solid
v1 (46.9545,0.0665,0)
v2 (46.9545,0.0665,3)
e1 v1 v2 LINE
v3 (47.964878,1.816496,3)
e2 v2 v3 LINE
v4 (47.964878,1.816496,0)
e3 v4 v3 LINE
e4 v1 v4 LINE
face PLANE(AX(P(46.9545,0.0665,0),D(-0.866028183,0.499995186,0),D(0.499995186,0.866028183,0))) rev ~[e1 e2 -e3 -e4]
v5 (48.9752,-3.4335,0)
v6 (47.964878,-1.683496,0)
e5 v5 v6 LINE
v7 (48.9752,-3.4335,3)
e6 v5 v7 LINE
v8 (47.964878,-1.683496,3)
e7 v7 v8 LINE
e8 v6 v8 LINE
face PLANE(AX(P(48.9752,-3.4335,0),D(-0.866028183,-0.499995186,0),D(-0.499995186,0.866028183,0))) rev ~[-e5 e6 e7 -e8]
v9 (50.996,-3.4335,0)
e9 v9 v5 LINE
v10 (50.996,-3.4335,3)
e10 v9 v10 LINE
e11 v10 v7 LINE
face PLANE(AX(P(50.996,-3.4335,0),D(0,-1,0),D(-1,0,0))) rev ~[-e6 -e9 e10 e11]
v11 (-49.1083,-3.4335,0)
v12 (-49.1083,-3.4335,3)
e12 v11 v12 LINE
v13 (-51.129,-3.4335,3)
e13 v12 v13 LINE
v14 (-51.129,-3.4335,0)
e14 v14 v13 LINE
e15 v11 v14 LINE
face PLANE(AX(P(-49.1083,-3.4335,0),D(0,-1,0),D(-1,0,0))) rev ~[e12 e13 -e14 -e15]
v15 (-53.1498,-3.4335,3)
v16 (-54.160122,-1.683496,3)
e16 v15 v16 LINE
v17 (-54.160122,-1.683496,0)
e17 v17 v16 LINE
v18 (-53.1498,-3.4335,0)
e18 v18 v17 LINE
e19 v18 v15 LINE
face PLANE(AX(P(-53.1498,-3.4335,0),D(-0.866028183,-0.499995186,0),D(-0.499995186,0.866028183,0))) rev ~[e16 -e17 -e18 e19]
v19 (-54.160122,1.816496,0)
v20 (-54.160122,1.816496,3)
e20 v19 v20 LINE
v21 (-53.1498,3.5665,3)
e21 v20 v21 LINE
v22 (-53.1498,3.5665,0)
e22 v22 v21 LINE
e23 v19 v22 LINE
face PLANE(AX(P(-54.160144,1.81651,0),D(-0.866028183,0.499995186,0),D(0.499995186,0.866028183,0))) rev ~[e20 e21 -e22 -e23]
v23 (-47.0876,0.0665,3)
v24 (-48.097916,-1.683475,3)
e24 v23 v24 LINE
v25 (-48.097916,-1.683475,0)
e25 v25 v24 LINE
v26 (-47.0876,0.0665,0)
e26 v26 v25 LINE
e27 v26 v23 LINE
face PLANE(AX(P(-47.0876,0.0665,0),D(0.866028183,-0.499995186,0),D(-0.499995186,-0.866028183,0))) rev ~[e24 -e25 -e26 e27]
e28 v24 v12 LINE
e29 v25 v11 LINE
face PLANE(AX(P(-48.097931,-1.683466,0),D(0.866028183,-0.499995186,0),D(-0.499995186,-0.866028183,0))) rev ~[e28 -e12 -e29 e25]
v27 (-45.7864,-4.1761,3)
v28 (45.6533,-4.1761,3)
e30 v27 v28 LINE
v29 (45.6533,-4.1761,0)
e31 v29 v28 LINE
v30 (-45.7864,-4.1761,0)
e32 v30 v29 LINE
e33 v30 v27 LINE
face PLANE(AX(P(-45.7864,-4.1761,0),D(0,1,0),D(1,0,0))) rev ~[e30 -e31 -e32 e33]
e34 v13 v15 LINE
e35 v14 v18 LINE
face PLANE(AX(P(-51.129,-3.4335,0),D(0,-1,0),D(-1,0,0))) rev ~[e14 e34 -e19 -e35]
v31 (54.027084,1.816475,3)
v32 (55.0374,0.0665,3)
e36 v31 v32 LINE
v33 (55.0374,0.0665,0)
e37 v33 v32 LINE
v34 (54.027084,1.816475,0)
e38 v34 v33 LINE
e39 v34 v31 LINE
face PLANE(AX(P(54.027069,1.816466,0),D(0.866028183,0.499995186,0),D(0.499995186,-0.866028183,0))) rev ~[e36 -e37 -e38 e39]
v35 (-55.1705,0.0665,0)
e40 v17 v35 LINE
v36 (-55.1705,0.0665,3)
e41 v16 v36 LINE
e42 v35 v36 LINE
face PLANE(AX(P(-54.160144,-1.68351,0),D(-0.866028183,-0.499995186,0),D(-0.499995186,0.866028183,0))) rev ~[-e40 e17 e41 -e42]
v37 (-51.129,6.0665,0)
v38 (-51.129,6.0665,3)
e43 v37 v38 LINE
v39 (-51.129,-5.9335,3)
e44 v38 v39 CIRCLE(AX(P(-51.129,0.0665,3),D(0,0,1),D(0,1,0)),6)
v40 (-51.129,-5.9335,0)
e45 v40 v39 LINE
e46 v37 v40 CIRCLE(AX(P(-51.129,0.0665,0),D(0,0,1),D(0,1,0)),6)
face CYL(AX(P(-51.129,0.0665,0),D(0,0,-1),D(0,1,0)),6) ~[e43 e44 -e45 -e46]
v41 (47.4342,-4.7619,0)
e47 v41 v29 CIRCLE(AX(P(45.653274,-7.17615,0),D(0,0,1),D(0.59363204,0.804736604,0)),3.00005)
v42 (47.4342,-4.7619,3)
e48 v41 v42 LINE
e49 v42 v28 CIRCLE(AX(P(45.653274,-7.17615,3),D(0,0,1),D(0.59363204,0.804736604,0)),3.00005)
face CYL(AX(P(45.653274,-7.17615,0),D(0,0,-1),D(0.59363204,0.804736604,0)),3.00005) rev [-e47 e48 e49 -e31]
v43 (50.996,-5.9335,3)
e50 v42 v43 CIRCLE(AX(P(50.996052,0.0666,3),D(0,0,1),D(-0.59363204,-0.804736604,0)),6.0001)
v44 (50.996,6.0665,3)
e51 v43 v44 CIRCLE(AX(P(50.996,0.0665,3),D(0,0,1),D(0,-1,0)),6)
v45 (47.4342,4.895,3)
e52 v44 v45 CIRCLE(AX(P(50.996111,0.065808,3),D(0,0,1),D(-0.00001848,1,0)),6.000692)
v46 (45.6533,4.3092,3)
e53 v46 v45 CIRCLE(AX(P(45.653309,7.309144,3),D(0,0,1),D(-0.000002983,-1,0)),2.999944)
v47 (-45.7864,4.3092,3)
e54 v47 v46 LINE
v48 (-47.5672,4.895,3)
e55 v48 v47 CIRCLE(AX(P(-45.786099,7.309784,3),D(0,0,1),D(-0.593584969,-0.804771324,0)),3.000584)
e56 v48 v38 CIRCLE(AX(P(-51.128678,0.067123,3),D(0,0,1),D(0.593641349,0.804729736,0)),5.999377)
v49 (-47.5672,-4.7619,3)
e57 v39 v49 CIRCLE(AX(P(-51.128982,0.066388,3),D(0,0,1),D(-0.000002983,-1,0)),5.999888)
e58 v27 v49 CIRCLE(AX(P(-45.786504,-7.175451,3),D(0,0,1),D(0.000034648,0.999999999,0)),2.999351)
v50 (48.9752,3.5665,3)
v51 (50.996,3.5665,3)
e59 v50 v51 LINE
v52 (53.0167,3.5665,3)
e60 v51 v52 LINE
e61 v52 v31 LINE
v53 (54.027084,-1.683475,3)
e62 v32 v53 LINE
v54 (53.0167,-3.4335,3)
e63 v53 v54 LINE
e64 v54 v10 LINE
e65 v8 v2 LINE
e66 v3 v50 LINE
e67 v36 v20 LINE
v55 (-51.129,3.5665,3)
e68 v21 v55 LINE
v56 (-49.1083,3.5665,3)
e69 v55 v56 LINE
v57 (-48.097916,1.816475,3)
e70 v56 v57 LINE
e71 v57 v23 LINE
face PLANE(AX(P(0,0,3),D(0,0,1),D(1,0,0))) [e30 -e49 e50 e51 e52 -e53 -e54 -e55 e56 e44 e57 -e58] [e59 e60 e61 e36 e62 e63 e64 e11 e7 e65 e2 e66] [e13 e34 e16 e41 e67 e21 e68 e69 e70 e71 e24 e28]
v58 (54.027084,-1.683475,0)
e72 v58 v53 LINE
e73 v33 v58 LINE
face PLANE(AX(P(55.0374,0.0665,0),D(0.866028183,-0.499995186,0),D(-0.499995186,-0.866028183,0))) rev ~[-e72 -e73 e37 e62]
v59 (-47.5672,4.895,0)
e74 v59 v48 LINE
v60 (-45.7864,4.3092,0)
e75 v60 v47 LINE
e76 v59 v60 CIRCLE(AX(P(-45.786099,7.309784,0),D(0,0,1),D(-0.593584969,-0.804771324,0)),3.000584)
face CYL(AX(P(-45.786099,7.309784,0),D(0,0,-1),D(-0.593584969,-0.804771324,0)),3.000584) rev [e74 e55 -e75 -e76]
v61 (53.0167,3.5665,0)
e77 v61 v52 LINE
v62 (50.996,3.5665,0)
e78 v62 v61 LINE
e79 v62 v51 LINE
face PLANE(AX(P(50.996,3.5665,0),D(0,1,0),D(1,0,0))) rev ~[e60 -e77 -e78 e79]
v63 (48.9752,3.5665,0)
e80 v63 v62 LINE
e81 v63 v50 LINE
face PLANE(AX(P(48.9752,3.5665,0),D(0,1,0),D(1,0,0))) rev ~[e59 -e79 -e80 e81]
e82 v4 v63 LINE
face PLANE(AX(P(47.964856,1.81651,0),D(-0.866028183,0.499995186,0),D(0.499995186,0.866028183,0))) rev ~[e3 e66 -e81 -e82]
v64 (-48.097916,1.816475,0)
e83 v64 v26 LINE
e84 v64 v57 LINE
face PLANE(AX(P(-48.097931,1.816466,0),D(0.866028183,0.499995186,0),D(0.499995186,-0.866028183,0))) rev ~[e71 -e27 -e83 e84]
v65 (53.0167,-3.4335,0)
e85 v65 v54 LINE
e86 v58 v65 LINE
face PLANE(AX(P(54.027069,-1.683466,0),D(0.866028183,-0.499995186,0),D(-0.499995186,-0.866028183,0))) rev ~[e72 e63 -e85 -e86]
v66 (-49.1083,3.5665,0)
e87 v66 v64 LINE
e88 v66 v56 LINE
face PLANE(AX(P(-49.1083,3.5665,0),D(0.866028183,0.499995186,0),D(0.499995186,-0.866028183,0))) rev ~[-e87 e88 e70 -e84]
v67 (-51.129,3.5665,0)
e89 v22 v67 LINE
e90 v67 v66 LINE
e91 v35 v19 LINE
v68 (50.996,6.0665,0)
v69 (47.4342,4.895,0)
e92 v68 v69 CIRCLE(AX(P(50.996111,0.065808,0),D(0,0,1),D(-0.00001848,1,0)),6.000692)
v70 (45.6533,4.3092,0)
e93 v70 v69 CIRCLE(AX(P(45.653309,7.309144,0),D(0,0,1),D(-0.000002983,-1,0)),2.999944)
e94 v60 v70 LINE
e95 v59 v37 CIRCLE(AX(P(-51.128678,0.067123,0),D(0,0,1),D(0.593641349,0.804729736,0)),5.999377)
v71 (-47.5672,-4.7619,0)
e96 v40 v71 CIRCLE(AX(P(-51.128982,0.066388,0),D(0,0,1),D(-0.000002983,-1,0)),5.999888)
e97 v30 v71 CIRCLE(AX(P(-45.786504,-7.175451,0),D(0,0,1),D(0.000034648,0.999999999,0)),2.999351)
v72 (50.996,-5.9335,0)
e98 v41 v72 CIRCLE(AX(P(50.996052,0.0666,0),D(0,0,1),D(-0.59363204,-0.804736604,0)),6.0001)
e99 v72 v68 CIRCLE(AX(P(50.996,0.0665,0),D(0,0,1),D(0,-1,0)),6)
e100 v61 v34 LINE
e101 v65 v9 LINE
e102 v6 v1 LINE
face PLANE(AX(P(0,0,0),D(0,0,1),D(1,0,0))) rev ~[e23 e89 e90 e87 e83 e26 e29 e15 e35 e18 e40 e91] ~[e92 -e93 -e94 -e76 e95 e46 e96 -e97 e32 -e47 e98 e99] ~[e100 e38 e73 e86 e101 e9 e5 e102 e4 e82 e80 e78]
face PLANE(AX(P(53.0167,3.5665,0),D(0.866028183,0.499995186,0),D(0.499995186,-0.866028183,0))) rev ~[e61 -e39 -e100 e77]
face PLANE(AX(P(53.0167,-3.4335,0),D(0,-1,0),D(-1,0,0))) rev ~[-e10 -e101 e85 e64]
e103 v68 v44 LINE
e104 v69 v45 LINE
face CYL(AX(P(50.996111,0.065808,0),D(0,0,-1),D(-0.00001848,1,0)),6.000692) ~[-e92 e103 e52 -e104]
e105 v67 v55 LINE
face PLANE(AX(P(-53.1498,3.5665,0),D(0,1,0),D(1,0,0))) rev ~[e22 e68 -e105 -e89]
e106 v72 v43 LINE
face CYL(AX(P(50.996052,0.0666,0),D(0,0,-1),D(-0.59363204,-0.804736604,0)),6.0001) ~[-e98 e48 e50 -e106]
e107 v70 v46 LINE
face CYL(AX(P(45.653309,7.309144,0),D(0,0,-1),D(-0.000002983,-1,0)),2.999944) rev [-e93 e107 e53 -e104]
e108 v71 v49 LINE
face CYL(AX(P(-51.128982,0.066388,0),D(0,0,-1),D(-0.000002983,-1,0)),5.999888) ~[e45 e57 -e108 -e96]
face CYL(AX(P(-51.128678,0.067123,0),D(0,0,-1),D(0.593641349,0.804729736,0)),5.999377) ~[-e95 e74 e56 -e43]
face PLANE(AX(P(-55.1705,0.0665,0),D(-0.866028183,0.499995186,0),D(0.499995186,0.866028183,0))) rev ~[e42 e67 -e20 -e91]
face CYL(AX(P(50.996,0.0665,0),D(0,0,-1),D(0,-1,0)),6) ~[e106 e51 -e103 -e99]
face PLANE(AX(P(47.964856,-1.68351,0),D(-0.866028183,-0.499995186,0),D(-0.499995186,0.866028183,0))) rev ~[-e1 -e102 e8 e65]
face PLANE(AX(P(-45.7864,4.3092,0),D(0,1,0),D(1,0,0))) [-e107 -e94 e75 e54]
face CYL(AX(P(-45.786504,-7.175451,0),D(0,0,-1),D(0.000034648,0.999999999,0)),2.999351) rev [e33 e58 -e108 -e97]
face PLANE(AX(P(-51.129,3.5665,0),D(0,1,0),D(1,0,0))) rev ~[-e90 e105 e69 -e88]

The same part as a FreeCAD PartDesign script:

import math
import FreeCAD as App
import Part
import Sketcher
Q = App.Units.Quantity

doc = App.newDocument("Part")
params = doc.addObject("Spreadsheet::Sheet", "Params")
for row, (alias, value) in enumerate([
    ("sketch1_radius", "6 mm"),
    ("sketch1_radius2", "3 mm"),
    ("pad1_length", "3 mm"),
], start=1):
    params.set(f"A{row}", alias)
    params.set(f"B{row}", "=" + value)
    params.setAlias(f"B{row}", alias)

body = doc.addObject("PartDesign::Body", "Body")

# Sketch on XY plane
sketch1 = doc.addObject("Sketcher::SketchObject", "Sketch")
body.addObject(sketch1)
sketch1.AttachmentSupport = (doc.XY_Plane, [""])
sketch1.MapMode = "FlatFace"
sketch1.addGeometry(Part.ArcOfCircle(Part.Circle(App.Vector(-51.1, 0.1, 0), App.Vector(0, 0, 1), 6), math.radians(54), math.radians(90)), False)
sketch1.addGeometry(Part.ArcOfCircle(Part.Circle(App.Vector(-51.1, 0.1, 0), App.Vector(0, 0, 1), 6), math.radians(90), math.radians(270)), False)
sketch1.addGeometry(Part.ArcOfCircle(Part.Circle(App.Vector(-51.1, 0.1, 0), App.Vector(0, 0, 1), 6), math.radians(-90), math.radians(-54)), False)
sketch1.addGeometry(Part.ArcOfCircle(Part.Circle(App.Vector(-45.8, -7.2, 0), App.Vector(0, 0, 1), 3), math.radians(90), math.radians(126)), False)
sketch1.addGeometry(Part.LineSegment(App.Vector(-45.8, -4.2, 0), App.Vector(45.7, -4.2, 0)), False)
sketch1.addGeometry(Part.ArcOfCircle(Part.Circle(App.Vector(45.7, -7.2, 0), App.Vector(0, 0, 1), 3), math.radians(54), math.radians(90)), False)
sketch1.addGeometry(Part.ArcOfCircle(Part.Circle(App.Vector(51, 0.1, 0), App.Vector(0, 0, 1), 6), math.radians(-126), math.radians(-90)), False)
sketch1.addGeometry(Part.ArcOfCircle(Part.Circle(App.Vector(51, 0.1, 0), App.Vector(0, 0, 1), 6), math.radians(-90), math.radians(90)), False)
sketch1.addGeometry(Part.ArcOfCircle(Part.Circle(App.Vector(51, 0.1, 0), App.Vector(0, 0, 1), 6), math.radians(90), math.radians(126)), False)
sketch1.addGeometry(Part.ArcOfCircle(Part.Circle(App.Vector(45.7, 7.3, 0), App.Vector(0, 0, 1), 3), math.radians(-90), math.radians(-54)), False)
sketch1.addGeometry(Part.LineSegment(App.Vector(45.7, 4.3, 0), App.Vector(-45.8, 4.3, 0)), False)
sketch1.addGeometry(Part.ArcOfCircle(Part.Circle(App.Vector(-45.8, 7.3, 0), App.Vector(0, 0, 1), 3), math.radians(-126), math.radians(-90)), False)
sketch1.addGeometry(Part.LineSegment(App.Vector(-49.1, 3.6, 0), App.Vector(-47.1, 0.1, 0)), False)
sketch1.addGeometry(Part.LineSegment(App.Vector(-47.1, 0.1, 0), App.Vector(-49.1, -3.4, 0)), False)
sketch1.addGeometry(Part.LineSegment(App.Vector(-49.1, -3.4, 0), App.Vector(-53.1, -3.4, 0)), False)
sketch1.addGeometry(Part.LineSegment(App.Vector(-53.1, -3.4, 0), App.Vector(-55.2, 0.1, 0)), False)
sketch1.addGeometry(Part.LineSegment(App.Vector(-55.2, 0.1, 0), App.Vector(-53.1, 3.6, 0)), False)
sketch1.addGeometry(Part.LineSegment(App.Vector(-53.1, 3.6, 0), App.Vector(-49.1, 3.6, 0)), False)
sketch1.addGeometry(Part.LineSegment(App.Vector(53, 3.6, 0), App.Vector(55, 0.1, 0)), False)
sketch1.addGeometry(Part.LineSegment(App.Vector(55, 0.1, 0), App.Vector(53, -3.4, 0)), False)
sketch1.addGeometry(Part.LineSegment(App.Vector(53, -3.4, 0), App.Vector(49, -3.4, 0)), False)
sketch1.addGeometry(Part.LineSegment(App.Vector(49, -3.4, 0), App.Vector(47, 0.1, 0)), False)
sketch1.addGeometry(Part.LineSegment(App.Vector(47, 0.1, 0), App.Vector(49, 3.6, 0)), False)
sketch1.addGeometry(Part.LineSegment(App.Vector(49, 3.6, 0), App.Vector(53, 3.6, 0)), False)
sketch1.addConstraint(Sketcher.Constraint("Tangent", 0, 2, 1, 1))
sketch1.addConstraint(Sketcher.Constraint("Tangent", 1, 2, 2, 1))
sketch1.addConstraint(Sketcher.Constraint("Tangent", 2, 2, 3, 2))
sketch1.addConstraint(Sketcher.Constraint("Tangent", 3, 1, 4, 1))
sketch1.addConstraint(Sketcher.Constraint("Tangent", 4, 2, 5, 2))
sketch1.addConstraint(Sketcher.Constraint("Tangent", 5, 1, 6, 1))
sketch1.addConstraint(Sketcher.Constraint("Tangent", 6, 2, 7, 1))
sketch1.addConstraint(Sketcher.Constraint("Tangent", 7, 2, 8, 1))
sketch1.addConstraint(Sketcher.Constraint("Tangent", 8, 2, 9, 2))
sketch1.addConstraint(Sketcher.Constraint("Tangent", 9, 1, 10, 1))
sketch1.addConstraint(Sketcher.Constraint("Tangent", 10, 2, 11, 2))
sketch1.addConstraint(Sketcher.Constraint("Tangent", 11, 1, 0, 1))
sketch1.addConstraint(Sketcher.Constraint("Coincident", 12, 2, 13, 1))
sketch1.addConstraint(Sketcher.Constraint("Coincident", 13, 2, 14, 1))
sketch1.addConstraint(Sketcher.Constraint("Coincident", 14, 2, 15, 1))
sketch1.addConstraint(Sketcher.Constraint("Coincident", 15, 2, 16, 1))
sketch1.addConstraint(Sketcher.Constraint("Coincident", 16, 2, 17, 1))
sketch1.addConstraint(Sketcher.Constraint("Coincident", 17, 2, 12, 1))
sketch1.addConstraint(Sketcher.Constraint("Coincident", 18, 2, 19, 1))
sketch1.addConstraint(Sketcher.Constraint("Coincident", 19, 2, 20, 1))
sketch1.addConstraint(Sketcher.Constraint("Coincident", 20, 2, 21, 1))
sketch1.addConstraint(Sketcher.Constraint("Coincident", 21, 2, 22, 1))
sketch1.addConstraint(Sketcher.Constraint("Coincident", 22, 2, 23, 1))
sketch1.addConstraint(Sketcher.Constraint("Coincident", 23, 2, 18, 1))
sketch1.addConstraint(Sketcher.Constraint("Horizontal", 4))
sketch1.addConstraint(Sketcher.Constraint("Horizontal", 10))
sketch1.addConstraint(Sketcher.Constraint("Horizontal", 14))
sketch1.addConstraint(Sketcher.Constraint("Horizontal", 17))
sketch1.addConstraint(Sketcher.Constraint("Horizontal", 20))
sketch1.addConstraint(Sketcher.Constraint("Horizontal", 23))
sketch1.addConstraint(Sketcher.Constraint("Equal", 0, 1))
sketch1.addConstraint(Sketcher.Constraint("Equal", 1, 2))
sketch1.addConstraint(Sketcher.Constraint("Equal", 3, 5))
sketch1.addConstraint(Sketcher.Constraint("Equal", 2, 6))
sketch1.addConstraint(Sketcher.Constraint("Equal", 6, 7))
sketch1.addConstraint(Sketcher.Constraint("Equal", 7, 8))
sketch1.addConstraint(Sketcher.Constraint("Equal", 5, 9))
sketch1.addConstraint(Sketcher.Constraint("Equal", 9, 11))
sketch1.addConstraint(Sketcher.Constraint("Parallel", 12, 15))
sketch1.addConstraint(Sketcher.Constraint("Parallel", 13, 16))
sketch1.addConstraint(Sketcher.Constraint("Parallel", 15, 18))
sketch1.addConstraint(Sketcher.Constraint("Parallel", 16, 19))
sketch1.addConstraint(Sketcher.Constraint("Parallel", 18, 21))
sketch1.addConstraint(Sketcher.Constraint("Parallel", 19, 22))
sketch1.addConstraint(Sketcher.Constraint("Horizontal", 2, 3, 6, 3))
sketch1.addConstraint(Sketcher.Constraint("Horizontal", 8, 3, 12, 2))
sketch1.addConstraint(Sketcher.Constraint("Horizontal", 12, 2, 15, 2))
sketch1.addConstraint(Sketcher.Constraint("Horizontal", 15, 2, 18, 2))
sketch1.addConstraint(Sketcher.Constraint("Horizontal", 14, 2, 19, 2))
sketch1.addConstraint(Sketcher.Constraint("Horizontal", 18, 2, 21, 2))
sketch1.addConstraint(Sketcher.Constraint("Horizontal", 17, 2, 22, 2))
sketch1.addConstraint(Sketcher.Constraint("Vertical", 5, 3, 9, 3))
sketch1.addConstraint(Sketcher.Constraint("Vertical", 2, 3, 0, 2))
sketch1.addConstraint(Sketcher.Constraint("Vertical", 0, 2, 1, 2))
sketch1.addConstraint(Sketcher.Constraint("Vertical", 8, 3, 6, 2))
sketch1.addConstraint(Sketcher.Constraint("Vertical", 6, 2, 7, 2))
sketch1.addConstraint(Sketcher.Constraint("Vertical", 14, 2, 16, 2))
sketch1.addConstraint(Sketcher.Constraint("Vertical", 13, 2, 17, 2))
sketch1.addConstraint(Sketcher.Constraint("Equal", 17, 20))
sketch1.addConstraint(Sketcher.Constraint("Radius", 0, Q("6 mm")))
sketch1.addConstraint(Sketcher.Constraint("Radius", 3, Q("3 mm")))
sketch1.addConstraint(Sketcher.Constraint("Angle", 12, Q("-60.0003 deg")))
sketch1.addConstraint(Sketcher.Constraint("DistanceX", 0, 3, 6, 3, Q("102.125 mm")))
sketch1.addConstraint(Sketcher.Constraint("DistanceY", 1, 2, 13, 2, Q("2.5 mm")))
sketch1.addConstraint(Sketcher.Constraint("DistanceX", 4, 1, 4, 2, Q("91.4397 mm")))
sketch1.addConstraint(Sketcher.Constraint("DistanceX", 14, 2, 14, 1, Q("4.0415 mm")))
sketch1.addConstraint(Sketcher.Constraint("DistanceX", 0, 3, -1, 1, Q("51.129 mm")))
sketch1.addConstraint(Sketcher.Constraint("DistanceY", 3, 3, -1, 1, Q("7.176 mm")))
sketch1.addConstraint(Sketcher.Constraint("DistanceX", 13, 2, 2, 2, Q("1.541 mm")))
sketch1.addConstraint(Sketcher.Constraint("DistanceX", 5, 1, 20, 2, Q("1.541 mm")))
sketch1.setExpression("Constraints[59]", "Params.sketch1_radius")
sketch1.setExpression("Constraints[60]", "Params.sketch1_radius2")
pad1 = doc.addObject("PartDesign::Pad", "Pad")
body.addObject(pad1)
pad1.Profile = sketch1
pad1.setExpression("Length", "Params.pad1_length")

doc.recompute()
